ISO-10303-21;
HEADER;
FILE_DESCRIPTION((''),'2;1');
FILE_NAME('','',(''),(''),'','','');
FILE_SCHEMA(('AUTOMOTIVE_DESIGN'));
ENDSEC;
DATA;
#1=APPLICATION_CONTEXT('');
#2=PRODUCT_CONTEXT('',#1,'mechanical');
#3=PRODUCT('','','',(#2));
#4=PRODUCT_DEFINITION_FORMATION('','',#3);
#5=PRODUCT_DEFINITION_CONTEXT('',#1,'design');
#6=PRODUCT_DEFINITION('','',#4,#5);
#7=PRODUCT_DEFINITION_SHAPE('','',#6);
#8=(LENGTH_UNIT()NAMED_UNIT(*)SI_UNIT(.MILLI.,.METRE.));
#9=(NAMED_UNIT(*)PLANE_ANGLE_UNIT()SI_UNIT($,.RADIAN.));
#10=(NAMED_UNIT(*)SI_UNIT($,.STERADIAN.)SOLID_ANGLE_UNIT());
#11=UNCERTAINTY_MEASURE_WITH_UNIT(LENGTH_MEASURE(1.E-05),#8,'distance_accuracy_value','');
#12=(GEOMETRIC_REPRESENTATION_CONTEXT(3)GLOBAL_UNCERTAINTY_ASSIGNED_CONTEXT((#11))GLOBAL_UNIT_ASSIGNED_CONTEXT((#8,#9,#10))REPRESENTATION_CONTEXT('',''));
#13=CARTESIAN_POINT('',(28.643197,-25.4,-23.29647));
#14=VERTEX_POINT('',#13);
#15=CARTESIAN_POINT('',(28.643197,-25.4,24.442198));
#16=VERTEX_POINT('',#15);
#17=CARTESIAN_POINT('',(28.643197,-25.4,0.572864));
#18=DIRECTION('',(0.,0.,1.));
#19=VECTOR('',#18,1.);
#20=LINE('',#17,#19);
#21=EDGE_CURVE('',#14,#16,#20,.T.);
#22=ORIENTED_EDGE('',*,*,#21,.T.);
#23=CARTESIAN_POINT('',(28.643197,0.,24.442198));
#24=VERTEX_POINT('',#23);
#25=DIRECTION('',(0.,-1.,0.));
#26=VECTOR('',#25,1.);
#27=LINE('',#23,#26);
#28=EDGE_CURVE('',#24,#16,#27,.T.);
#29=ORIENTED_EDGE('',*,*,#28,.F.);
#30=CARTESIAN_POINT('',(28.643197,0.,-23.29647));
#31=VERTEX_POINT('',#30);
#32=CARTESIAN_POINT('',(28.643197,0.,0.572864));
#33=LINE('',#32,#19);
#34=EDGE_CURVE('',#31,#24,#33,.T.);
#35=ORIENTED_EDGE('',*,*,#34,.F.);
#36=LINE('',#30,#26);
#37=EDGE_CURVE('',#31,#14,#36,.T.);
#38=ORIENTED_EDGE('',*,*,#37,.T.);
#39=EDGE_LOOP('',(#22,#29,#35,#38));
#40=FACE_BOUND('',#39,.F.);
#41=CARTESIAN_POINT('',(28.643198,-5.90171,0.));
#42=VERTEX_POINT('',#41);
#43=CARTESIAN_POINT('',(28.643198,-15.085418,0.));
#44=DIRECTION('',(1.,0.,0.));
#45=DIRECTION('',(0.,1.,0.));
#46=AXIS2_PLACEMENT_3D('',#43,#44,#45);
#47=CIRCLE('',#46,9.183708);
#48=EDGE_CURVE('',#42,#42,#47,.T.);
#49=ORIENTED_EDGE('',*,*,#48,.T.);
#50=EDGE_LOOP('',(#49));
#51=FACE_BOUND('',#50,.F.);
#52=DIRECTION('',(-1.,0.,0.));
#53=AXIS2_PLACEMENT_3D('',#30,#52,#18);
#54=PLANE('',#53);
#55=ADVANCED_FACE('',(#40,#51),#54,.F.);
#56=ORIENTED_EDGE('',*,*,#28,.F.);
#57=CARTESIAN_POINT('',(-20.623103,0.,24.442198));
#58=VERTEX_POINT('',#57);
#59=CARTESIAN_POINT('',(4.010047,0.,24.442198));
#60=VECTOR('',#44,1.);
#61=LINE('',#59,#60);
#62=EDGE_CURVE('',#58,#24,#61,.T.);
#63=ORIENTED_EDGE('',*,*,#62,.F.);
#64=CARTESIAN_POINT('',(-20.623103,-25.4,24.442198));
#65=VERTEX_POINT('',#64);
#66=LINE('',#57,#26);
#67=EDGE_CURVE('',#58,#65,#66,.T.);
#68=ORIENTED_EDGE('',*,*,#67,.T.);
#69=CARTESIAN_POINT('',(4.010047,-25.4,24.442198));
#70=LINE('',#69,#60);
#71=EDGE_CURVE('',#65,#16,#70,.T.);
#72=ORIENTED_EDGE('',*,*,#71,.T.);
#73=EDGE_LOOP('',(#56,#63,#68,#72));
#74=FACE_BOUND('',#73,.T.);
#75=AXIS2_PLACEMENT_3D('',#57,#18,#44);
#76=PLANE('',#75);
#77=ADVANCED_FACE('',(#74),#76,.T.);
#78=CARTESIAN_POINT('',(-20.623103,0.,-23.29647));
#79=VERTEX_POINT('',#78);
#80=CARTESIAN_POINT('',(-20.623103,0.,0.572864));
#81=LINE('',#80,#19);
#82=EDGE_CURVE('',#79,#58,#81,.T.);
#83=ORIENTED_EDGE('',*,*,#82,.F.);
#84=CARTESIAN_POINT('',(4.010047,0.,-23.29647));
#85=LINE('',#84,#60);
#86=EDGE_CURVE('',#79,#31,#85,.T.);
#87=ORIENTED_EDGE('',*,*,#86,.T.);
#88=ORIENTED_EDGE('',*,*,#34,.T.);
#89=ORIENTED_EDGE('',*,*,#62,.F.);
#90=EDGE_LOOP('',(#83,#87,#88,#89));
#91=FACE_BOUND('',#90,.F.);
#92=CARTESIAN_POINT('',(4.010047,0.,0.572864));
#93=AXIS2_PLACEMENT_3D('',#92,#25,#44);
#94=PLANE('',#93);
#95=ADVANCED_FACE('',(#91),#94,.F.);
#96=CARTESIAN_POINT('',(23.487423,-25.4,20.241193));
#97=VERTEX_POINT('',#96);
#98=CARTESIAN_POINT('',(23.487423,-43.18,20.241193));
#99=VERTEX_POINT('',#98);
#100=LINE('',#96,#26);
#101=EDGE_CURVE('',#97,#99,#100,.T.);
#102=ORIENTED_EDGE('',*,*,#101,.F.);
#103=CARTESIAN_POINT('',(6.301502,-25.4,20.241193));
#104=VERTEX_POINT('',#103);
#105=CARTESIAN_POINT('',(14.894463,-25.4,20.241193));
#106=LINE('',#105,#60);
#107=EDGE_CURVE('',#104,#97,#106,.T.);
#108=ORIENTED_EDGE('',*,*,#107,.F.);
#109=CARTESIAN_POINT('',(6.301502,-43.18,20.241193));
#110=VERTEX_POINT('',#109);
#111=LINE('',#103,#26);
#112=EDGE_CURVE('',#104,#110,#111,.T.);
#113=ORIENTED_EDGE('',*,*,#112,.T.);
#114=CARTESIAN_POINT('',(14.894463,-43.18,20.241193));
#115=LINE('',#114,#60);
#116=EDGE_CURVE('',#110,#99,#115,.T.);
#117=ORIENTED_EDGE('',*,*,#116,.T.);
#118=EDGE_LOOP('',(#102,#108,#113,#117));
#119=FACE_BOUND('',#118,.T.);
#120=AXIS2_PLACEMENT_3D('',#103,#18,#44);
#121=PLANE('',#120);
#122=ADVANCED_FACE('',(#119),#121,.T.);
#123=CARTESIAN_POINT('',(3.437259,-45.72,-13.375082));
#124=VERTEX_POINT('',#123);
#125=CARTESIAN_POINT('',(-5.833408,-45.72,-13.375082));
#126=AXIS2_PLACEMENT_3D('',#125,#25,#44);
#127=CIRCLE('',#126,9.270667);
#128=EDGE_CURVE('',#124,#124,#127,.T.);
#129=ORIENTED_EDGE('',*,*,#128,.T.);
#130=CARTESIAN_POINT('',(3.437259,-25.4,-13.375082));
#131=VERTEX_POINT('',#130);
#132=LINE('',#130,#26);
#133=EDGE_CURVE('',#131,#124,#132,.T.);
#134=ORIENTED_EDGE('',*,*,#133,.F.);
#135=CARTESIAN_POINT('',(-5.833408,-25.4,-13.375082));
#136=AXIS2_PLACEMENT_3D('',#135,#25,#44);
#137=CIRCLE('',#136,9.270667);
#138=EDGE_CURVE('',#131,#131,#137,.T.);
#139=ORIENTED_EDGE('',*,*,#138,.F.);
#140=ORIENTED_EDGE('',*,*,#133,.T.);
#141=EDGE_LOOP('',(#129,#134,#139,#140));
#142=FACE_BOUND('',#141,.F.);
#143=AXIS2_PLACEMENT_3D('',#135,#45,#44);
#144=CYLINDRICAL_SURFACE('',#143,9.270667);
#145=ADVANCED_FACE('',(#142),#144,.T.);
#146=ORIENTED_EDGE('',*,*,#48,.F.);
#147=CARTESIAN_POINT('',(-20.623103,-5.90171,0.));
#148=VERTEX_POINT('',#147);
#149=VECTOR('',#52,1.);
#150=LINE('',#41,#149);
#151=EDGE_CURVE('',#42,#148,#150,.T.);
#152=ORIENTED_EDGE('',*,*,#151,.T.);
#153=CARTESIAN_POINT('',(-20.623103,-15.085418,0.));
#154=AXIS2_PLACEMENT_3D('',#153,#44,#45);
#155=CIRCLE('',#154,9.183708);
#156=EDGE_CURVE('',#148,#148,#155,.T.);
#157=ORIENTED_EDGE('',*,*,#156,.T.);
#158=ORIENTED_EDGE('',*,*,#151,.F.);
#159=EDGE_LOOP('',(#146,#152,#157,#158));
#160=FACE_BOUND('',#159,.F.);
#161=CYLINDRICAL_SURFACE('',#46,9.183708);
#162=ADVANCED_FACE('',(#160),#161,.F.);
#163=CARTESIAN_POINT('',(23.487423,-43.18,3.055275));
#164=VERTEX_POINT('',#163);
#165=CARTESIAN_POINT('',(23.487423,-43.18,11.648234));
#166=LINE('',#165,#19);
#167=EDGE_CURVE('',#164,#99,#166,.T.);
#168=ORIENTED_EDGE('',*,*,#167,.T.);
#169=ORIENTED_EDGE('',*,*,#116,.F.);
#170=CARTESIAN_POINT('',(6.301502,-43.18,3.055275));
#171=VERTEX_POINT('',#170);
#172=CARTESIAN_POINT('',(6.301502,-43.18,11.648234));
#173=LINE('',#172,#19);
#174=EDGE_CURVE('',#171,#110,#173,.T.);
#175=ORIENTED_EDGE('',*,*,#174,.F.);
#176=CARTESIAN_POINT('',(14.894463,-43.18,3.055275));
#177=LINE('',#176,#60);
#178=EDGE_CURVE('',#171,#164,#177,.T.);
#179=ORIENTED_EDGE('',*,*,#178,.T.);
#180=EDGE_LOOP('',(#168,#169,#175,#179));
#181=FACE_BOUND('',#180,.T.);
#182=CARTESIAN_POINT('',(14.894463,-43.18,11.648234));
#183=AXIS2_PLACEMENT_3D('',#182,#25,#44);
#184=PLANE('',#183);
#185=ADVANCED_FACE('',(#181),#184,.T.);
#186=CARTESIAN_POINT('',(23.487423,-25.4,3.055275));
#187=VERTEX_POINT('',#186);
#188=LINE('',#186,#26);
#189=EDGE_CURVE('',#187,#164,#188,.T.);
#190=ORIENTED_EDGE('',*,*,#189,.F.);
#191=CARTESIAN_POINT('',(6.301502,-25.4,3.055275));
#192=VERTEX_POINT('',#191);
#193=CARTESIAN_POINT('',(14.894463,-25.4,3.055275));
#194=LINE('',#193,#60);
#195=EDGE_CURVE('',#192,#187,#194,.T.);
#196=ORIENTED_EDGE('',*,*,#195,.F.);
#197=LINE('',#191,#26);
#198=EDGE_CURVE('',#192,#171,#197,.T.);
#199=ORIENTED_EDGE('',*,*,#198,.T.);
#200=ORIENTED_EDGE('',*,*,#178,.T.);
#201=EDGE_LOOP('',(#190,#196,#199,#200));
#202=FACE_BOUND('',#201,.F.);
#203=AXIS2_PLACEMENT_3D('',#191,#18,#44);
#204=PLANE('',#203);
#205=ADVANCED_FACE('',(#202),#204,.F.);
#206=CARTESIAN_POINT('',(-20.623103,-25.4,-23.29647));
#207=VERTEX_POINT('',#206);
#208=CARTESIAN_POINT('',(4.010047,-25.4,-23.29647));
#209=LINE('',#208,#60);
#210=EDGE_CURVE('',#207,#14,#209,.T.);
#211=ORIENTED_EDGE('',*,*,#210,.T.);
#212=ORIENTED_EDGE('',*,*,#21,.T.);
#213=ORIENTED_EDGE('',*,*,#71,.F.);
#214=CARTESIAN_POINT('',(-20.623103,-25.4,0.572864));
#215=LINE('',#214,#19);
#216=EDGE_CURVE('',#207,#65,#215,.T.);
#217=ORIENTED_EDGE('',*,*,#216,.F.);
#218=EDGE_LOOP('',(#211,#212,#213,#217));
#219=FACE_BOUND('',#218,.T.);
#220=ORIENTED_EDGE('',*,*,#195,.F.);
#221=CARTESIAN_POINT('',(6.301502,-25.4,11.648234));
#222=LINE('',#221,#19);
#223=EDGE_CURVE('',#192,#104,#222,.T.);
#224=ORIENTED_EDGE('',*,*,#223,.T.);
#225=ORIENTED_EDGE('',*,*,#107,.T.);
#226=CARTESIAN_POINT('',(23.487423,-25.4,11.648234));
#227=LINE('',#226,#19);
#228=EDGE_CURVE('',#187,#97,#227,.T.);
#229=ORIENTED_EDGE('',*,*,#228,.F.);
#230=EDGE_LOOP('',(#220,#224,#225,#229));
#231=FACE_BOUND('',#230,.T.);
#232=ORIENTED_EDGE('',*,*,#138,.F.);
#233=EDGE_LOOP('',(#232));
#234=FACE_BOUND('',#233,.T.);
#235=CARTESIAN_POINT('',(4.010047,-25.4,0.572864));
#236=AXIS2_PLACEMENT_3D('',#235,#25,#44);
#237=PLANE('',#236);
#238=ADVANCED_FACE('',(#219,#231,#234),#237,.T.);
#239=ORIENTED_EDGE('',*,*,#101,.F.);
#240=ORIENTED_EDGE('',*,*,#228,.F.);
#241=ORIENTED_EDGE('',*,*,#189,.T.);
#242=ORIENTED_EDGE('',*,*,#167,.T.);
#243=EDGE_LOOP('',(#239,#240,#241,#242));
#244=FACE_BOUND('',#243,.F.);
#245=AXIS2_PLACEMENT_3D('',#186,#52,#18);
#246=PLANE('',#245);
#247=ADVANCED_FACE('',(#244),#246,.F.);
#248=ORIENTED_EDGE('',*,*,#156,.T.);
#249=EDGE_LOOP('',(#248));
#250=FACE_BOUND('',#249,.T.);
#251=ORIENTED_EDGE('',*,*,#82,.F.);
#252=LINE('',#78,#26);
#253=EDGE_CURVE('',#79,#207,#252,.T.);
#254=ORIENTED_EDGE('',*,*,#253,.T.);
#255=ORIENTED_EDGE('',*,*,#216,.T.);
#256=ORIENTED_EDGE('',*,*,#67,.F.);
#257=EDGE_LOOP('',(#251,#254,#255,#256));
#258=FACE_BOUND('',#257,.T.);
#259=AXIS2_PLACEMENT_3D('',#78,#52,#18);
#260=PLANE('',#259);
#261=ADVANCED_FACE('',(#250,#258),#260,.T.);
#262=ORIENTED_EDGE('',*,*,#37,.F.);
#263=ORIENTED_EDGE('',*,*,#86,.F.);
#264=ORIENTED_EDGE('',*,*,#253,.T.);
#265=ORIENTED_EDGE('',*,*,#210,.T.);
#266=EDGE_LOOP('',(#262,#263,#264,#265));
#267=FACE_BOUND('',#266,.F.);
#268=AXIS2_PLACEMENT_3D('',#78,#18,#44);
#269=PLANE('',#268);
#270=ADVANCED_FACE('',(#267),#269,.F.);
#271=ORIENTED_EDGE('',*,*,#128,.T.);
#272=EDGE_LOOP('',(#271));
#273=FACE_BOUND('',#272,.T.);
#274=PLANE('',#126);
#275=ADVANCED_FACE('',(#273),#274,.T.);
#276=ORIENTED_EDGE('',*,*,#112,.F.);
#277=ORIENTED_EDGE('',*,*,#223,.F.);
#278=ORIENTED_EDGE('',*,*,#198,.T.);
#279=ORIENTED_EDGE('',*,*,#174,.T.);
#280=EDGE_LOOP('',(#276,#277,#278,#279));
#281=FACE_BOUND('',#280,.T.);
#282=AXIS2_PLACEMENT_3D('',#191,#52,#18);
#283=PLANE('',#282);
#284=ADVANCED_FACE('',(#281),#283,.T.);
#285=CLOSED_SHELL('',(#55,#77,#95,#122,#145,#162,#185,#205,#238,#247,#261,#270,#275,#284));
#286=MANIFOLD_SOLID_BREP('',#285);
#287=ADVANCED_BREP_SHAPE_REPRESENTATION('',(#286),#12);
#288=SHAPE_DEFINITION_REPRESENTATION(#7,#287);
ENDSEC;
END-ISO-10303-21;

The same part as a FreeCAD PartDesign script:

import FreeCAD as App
import Part
import Sketcher

V = App.Vector
Q = App.Units.Quantity

doc = App.newDocument("Part")
body = doc.addObject("PartDesign::Body", "Body")

# Sketch on XZ plane
sketch1 = body.newObject("Sketcher::SketchObject", "Sketch")
sketch1.AttachmentSupport = (doc.getObject("XZ_Plane"), [""])
sketch1.MapMode = "FlatFace"
sketch1.addGeometry([
    Part.LineSegment(V(-20.623103, 24.442198, 0), V(-20.623103, -23.29647, 0)),
    Part.LineSegment(V(-20.623103, -23.29647, 0), V(28.643197, -23.29647, 0)),
    Part.LineSegment(V(28.643197, -23.29647, 0), V(28.643197, 24.442198, 0)),
    Part.LineSegment(V(28.643197, 24.442198, 0), V(-20.623103, 24.442198, 0)),
], False)
sketch1.addConstraint([
    Sketcher.Constraint("Coincident", 0, 2, 1, 1),
    Sketcher.Constraint("Coincident", 1, 2, 2, 1),
    Sketcher.Constraint("Coincident", 2, 2, 3, 1),
    Sketcher.Constraint("Coincident", 3, 2, 0, 1),
    Sketcher.Constraint("Vertical", 0),
    Sketcher.Constraint("Horizontal", 1),
    Sketcher.Constraint("Vertical", 2),
    Sketcher.Constraint("Horizontal", 3),
    Sketcher.Constraint("DistanceX", 1, 1, 1, 2, Q("49.266301 mm")),
    Sketcher.Constraint("DistanceY", 0, 2, 0, 1, Q("47.738668 mm")),
    Sketcher.Constraint("DistanceY", -1, 1, 2, 2, Q("24.442198 mm")),
    Sketcher.Constraint("DistanceX", 0, 2, -1, 1, Q("20.623103 mm")),
])
pad1 = body.newObject("PartDesign::Pad", "Pad")
pad1.Profile = sketch1
pad1.Length = Q("1 in")

# Sketch on XZ plane
sketch2 = body.newObject("Sketcher::SketchObject", "Sketch001")
sketch2.AttachmentSupport = (doc.getObject("XZ_Plane"), [""])
sketch2.MapMode = "FlatFace"
sketch2.AttachmentOffset = App.Placement(V(0, 0, 1 * 25.4), App.Rotation())
sketch2.addGeometry([
    Part.LineSegment(V(6.301502, 20.241193, 0), V(6.301502, 3.055275, 0)),
    Part.LineSegment(V(6.301502, 3.055275, 0), V(23.487423, 3.055275, 0)),
    Part.LineSegment(V(23.487423, 3.055275, 0), V(23.487423, 20.241193, 0)),
    Part.LineSegment(V(23.487423, 20.241193, 0), V(6.301502, 20.241193, 0)),
], False)
sketch2.addConstraint([
    Sketcher.Constraint("Coincident", 0, 2, 1, 1),
    Sketcher.Constraint("Coincident", 1, 2, 2, 1),
    Sketcher.Constraint("Coincident", 2, 2, 3, 1),
    Sketcher.Constraint("Coincident", 3, 2, 0, 1),
    Sketcher.Constraint("Vertical", 0),
    Sketcher.Constraint("Horizontal", 1),
    Sketcher.Constraint("Vertical", 2),
    Sketcher.Constraint("Horizontal", 3),
    Sketcher.Constraint("DistanceX", 1, 1, 1, 2, Q("17.185921 mm")),
    Sketcher.Constraint("DistanceY", 0, 2, 0, 1, Q("17.185918 mm")),
    Sketcher.Constraint("DistanceX", -1, 1, 0, 2, Q("6.301502 mm")),
    Sketcher.Constraint("DistanceY", -1, 1, 0, 2, Q("3.055275 mm")),
])
pad2 = body.newObject("PartDesign::Pad", "Pad001")
pad2.Profile = sketch2
pad2.Length = Q("0.7 in")

# Sketch on XZ plane
sketch3 = body.newObject("Sketcher::SketchObject", "Sketch002")
sketch3.AttachmentSupport = (doc.getObject("XZ_Plane"), [""])
sketch3.MapMode = "FlatFace"
sketch3.AttachmentOffset = App.Placement(V(0, 0, 1 * 25.4), App.Rotation())
sketch3.addGeometry(Part.Circle(V(-5.833408, -13.375082, 0), V(0, 0, 1), 9.270667), False)
sketch3.addConstraint([
    Sketcher.Constraint("Diameter", 0, Q("18.541334 mm")),
    Sketcher.Constraint("DistanceX", 0, 3, -1, 1, Q("5.833408 mm")),
    Sketcher.Constraint("DistanceY", 0, 3, -1, 1, Q("13.375082 mm")),
])
pad3 = body.newObject("PartDesign::Pad", "Pad002")
pad3.Profile = sketch3
pad3.Length = Q("0.8 in")

# Sketch on YZ plane
sketch4 = body.newObject("Sketcher::SketchObject", "Sketch003")
sketch4.AttachmentSupport = (doc.getObject("YZ_Plane"), [""])
sketch4.MapMode = "FlatFace"
sketch4.AttachmentOffset = App.Placement(V(0, 0, 28.643198), App.Rotation())
sketch4.addGeometry(Part.Circle(V(-15.085418, 0, 0), V(0, 0, 1), 9.183708), False)
sketch4.addConstraint([
    Sketcher.Constraint("PointOnObject", 0, 3, -1),
    Sketcher.Constraint("Diameter", 0, Q("18.367416 mm")),
    Sketcher.Constraint("DistanceX", 0, 3, -1, 1, Q("15.085418 mm")),
])
pocket1 = body.newObject("PartDesign::Pocket", "Pocket")
pocket1.Profile = sketch4
pocket1.Length = Q("2 in")

doc.recompute()
